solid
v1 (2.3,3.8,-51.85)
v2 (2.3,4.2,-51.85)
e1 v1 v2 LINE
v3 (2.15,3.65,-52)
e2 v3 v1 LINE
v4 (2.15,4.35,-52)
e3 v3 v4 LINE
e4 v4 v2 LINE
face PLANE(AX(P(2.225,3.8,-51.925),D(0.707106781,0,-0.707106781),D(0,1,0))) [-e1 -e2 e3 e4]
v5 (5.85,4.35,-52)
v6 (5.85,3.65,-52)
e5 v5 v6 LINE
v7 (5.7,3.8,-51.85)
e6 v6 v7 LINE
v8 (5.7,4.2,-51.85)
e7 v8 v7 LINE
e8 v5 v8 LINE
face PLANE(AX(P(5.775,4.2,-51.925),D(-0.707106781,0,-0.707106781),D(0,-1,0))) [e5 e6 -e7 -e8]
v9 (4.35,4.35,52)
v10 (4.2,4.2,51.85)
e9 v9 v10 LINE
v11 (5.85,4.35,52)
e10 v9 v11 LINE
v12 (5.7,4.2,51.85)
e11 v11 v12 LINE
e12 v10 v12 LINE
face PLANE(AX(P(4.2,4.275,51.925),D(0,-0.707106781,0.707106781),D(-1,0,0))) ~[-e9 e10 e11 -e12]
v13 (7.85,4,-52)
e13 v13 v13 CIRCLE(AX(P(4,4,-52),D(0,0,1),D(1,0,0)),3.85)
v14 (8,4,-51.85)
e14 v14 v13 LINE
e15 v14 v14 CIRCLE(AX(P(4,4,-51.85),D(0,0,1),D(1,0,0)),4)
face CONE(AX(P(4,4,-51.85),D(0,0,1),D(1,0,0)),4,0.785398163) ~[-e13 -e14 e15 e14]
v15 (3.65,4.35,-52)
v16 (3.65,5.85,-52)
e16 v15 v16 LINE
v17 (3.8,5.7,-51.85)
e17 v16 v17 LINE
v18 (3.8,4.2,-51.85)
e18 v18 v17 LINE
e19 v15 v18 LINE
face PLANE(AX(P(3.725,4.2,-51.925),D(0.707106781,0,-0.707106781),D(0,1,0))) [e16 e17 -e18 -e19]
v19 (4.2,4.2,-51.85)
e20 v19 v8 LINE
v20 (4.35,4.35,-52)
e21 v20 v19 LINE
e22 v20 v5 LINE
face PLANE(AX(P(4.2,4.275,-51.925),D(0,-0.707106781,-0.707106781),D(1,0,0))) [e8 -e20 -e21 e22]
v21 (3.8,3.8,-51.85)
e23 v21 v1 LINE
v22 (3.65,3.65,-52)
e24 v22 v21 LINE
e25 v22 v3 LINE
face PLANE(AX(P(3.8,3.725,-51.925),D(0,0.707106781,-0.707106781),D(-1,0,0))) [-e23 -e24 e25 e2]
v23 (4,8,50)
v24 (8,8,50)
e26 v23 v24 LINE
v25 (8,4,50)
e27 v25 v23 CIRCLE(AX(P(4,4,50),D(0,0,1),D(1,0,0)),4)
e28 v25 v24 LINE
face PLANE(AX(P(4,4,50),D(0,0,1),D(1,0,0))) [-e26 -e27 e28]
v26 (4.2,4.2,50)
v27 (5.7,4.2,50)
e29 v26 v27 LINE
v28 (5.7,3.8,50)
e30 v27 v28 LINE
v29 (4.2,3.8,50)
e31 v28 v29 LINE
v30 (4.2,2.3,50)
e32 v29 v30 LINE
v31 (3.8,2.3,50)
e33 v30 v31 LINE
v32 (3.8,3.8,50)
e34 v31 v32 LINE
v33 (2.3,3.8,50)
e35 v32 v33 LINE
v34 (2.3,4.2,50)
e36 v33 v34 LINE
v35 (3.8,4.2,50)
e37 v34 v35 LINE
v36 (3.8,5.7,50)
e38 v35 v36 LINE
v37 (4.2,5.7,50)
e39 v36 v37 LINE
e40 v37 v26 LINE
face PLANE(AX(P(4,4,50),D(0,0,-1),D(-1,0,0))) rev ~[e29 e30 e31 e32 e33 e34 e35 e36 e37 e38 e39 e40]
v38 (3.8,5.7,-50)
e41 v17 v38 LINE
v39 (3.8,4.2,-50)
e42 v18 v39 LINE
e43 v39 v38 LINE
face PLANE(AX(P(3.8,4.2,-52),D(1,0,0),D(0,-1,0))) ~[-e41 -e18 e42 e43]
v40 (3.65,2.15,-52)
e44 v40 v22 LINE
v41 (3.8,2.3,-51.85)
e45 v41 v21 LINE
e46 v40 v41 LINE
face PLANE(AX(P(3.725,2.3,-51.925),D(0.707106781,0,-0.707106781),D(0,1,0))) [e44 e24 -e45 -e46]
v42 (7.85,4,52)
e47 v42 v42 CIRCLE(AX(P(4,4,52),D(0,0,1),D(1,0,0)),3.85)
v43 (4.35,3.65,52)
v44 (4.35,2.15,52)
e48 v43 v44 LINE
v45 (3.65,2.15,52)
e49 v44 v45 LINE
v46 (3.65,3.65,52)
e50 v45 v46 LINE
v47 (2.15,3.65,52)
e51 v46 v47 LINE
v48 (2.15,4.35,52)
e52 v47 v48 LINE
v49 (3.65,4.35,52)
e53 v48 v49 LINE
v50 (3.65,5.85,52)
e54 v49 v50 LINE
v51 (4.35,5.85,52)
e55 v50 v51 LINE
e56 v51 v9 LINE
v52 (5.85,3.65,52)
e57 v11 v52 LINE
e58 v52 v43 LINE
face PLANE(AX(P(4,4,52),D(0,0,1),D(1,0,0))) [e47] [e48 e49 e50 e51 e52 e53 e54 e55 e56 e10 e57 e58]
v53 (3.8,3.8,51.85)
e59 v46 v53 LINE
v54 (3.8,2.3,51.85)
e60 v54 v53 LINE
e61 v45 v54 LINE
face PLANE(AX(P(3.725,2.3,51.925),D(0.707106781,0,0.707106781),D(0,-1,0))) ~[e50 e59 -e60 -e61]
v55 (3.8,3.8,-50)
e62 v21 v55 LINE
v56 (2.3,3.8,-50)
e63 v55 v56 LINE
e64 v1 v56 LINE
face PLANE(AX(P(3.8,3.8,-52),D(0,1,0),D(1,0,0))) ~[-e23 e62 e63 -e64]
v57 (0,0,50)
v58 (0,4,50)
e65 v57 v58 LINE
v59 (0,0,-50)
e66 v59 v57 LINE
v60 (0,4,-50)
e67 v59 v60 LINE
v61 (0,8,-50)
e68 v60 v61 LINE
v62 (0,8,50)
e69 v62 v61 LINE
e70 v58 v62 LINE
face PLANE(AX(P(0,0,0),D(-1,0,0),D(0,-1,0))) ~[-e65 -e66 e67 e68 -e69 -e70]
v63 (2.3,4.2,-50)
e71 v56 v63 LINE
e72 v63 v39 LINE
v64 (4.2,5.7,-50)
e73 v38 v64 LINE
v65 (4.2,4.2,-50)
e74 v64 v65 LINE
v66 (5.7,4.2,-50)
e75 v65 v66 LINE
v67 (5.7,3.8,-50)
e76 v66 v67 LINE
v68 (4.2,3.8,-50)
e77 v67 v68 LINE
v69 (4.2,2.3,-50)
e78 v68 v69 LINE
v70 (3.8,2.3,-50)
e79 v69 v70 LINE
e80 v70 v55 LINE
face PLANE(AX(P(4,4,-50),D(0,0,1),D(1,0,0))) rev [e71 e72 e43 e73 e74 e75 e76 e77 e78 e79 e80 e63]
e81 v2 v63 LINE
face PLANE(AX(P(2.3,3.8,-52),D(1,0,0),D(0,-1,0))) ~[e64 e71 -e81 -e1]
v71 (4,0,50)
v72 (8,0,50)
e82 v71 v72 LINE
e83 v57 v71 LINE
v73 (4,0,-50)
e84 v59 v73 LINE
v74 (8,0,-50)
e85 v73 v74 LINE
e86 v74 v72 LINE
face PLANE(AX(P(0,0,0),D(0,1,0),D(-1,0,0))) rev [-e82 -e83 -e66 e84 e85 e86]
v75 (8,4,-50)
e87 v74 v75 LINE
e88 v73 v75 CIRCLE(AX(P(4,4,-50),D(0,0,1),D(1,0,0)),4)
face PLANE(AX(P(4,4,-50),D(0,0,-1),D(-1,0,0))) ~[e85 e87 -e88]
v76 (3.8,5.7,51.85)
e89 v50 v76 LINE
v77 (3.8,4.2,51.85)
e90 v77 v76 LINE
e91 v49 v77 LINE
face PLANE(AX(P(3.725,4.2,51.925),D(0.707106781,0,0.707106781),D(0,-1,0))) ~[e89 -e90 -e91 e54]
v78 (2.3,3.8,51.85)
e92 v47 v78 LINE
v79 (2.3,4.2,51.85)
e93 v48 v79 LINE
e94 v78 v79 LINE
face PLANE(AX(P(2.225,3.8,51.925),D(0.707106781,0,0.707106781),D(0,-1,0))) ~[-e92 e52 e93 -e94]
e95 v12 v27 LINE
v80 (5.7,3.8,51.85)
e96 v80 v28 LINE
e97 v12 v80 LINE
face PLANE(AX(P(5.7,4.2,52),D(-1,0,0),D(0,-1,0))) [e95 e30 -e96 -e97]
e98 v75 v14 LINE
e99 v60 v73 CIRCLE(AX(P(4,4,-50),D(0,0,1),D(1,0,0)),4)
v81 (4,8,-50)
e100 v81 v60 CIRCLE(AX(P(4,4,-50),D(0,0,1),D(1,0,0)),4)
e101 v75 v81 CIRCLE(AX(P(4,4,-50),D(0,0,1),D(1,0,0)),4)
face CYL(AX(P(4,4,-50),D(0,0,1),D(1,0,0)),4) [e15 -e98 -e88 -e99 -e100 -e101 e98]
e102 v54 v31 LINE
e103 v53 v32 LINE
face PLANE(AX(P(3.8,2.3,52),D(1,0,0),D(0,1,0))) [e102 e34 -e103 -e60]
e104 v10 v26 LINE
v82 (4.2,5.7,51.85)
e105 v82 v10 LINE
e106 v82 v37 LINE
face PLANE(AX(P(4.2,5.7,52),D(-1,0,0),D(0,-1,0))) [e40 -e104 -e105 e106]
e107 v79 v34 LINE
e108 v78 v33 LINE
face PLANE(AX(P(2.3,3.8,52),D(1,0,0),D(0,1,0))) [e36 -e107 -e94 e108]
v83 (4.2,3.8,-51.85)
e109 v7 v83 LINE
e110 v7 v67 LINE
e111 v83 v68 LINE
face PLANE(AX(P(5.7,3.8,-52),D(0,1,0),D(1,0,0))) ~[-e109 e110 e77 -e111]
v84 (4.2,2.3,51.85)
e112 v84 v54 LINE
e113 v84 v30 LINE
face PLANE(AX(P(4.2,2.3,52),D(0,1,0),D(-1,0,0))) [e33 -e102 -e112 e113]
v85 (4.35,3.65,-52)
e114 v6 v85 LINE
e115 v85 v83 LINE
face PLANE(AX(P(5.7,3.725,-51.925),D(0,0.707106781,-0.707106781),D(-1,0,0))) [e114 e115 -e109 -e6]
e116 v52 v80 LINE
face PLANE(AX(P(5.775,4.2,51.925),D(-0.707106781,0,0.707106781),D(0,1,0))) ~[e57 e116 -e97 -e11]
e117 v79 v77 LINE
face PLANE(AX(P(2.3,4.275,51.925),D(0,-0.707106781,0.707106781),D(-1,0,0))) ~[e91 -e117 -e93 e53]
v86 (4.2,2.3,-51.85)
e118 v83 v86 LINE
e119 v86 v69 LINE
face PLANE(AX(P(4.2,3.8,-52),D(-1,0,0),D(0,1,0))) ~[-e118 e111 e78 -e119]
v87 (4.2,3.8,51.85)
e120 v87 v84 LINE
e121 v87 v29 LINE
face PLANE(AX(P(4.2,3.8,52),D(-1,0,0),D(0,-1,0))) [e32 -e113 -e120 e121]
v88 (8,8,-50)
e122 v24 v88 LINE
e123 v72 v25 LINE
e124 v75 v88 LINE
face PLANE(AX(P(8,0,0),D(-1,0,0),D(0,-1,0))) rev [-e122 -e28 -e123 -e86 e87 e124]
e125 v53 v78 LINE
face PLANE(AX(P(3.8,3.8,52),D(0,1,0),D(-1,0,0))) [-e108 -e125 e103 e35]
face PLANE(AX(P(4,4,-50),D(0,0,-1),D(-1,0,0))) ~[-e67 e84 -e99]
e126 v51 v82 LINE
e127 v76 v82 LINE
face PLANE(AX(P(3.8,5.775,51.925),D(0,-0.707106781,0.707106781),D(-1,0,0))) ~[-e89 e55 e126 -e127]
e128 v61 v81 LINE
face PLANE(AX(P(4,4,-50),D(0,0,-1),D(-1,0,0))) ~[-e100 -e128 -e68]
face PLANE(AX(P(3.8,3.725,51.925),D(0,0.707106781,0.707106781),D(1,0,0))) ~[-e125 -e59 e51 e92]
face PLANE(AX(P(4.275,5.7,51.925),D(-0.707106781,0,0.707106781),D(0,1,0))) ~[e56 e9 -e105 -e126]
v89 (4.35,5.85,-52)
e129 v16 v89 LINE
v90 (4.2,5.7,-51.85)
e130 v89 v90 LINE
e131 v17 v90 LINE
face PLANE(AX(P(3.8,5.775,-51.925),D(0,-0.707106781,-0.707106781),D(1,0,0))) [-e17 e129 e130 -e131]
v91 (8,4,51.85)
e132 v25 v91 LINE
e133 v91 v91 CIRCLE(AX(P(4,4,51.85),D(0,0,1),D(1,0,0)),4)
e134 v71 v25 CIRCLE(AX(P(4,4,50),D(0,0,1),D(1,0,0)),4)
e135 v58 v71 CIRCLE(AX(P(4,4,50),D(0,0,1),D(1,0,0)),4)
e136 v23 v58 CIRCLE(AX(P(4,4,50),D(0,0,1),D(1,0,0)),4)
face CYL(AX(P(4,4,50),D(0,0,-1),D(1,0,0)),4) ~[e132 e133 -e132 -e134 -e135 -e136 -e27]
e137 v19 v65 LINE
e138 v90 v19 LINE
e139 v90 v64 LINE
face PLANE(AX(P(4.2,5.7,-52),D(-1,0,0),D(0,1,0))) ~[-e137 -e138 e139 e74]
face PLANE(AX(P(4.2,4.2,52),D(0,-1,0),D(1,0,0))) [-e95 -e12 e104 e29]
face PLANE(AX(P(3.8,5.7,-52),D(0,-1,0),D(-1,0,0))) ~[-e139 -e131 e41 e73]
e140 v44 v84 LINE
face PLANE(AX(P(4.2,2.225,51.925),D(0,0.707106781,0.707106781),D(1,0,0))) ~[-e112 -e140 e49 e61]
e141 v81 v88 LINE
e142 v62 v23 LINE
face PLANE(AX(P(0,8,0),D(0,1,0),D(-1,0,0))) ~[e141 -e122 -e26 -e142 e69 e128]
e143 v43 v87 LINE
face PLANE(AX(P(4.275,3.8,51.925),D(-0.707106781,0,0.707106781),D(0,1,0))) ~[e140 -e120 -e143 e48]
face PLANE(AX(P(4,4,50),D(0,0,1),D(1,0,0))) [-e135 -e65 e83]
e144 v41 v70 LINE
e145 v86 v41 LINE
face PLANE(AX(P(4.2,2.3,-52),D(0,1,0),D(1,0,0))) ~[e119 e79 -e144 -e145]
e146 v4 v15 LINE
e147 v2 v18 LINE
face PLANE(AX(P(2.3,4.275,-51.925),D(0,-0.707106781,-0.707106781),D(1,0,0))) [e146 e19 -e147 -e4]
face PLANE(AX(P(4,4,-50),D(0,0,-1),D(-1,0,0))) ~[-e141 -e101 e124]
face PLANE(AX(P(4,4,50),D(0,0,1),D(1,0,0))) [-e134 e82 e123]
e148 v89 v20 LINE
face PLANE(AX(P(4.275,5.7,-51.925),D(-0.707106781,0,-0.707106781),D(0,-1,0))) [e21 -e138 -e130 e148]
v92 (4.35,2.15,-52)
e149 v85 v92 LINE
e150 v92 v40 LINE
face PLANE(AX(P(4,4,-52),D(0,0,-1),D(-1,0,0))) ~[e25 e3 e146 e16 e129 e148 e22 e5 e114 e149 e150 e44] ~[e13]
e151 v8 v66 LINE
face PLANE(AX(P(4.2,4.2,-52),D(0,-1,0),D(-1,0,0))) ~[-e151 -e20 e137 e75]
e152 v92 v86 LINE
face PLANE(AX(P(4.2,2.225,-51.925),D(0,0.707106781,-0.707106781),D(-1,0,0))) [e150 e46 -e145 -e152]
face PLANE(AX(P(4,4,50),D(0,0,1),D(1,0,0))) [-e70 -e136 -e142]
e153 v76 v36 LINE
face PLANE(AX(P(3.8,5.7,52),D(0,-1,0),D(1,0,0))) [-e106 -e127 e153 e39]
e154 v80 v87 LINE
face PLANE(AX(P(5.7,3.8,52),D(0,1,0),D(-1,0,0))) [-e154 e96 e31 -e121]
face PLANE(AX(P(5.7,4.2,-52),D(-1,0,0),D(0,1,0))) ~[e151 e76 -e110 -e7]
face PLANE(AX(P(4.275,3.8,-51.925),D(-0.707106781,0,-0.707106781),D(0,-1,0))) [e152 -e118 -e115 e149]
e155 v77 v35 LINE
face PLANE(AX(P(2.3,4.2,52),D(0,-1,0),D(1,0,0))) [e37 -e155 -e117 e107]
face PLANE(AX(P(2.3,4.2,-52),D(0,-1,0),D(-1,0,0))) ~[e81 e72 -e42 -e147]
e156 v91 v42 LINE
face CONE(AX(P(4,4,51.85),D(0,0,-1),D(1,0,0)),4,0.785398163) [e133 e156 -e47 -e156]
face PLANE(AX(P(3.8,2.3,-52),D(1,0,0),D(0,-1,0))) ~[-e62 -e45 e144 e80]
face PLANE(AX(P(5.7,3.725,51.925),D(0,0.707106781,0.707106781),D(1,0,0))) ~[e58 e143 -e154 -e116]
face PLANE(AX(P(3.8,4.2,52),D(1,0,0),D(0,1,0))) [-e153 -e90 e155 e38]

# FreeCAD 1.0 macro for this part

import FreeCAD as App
import Part
import Sketcher
from FreeCAD import Vector
Q = App.Units.Quantity


def edges_at(feature, points):
    """Names of the edges that pass closest to the given points."""
    edges = feature.Shape.Edges
    near = lambda p: min(range(len(edges)), key=lambda i: edges[i].distToShape(Part.Vertex(*p))[0])
    return sorted({f"Edge{near(p) + 1}" for p in points})


def add_polygon(sketch, points):
    """Adds a closed chain of lines whose ends are joined by coincident constraints."""
    first, n = sketch.GeometryCount, len(points)
    for a, b in zip(points, points[1:] + points[:1]):
        sketch.addGeometry(Part.LineSegment(App.Vector(*a, 0), App.Vector(*b, 0)), False)
    for i in range(n):
        sketch.addConstraint(Sketcher.Constraint("Coincident", first + i, 2, first + (i + 1) % n, 1))

doc = App.newDocument("Part")
body = doc.addObject("PartDesign::Body", "Body")

sketch1 = body.newObject("Sketcher::SketchObject", "Sketch")
sketch1.AttachmentSupport = (doc.getObject("XY_Plane"), [""])
sketch1.MapMode = "FlatFace"
add_polygon(sketch1, [(0, 8), (0, 0), (8, 0), (8, 8)])
sketch1.addConstraint(Sketcher.Constraint("Vertical", 0))
sketch1.addConstraint(Sketcher.Constraint("Horizontal", 1))
sketch1.addConstraint(Sketcher.Constraint("Vertical", 2))
sketch1.addConstraint(Sketcher.Constraint("Horizontal", 3))
sketch1.addConstraint(Sketcher.Constraint("Coincident", 0, 2, -1, 1))
sketch1.addConstraint(Sketcher.Constraint("Equal", 3, 0))
sketch1.addConstraint(Sketcher.Constraint("DistanceX", 1, 1, 1, 2, Q("8 mm")))
pad1 = body.newObject("PartDesign::Pad", "Pad")
pad1.Profile = sketch1
pad1.Length = 50

sketch2 = body.newObject("Sketcher::SketchObject", "Sketch001")
sketch2.AttachmentSupport = (doc.getObject("XY_Plane"), [""])
sketch2.MapMode = "FlatFace"
sketch2.AttachmentOffset = App.Placement(Vector(0, 0, 50), App.Rotation())
sketch2.addGeometry(Part.Circle(Vector(4, 4, 0), Vector(0, 0, 1), 4), False)
sketch2.addConstraint(Sketcher.Constraint("Diameter", 0, Q("8 mm")))
sketch2.addConstraint(Sketcher.Constraint("DistanceX", -1, 1, 0, 3, Q("4 mm")))
sketch2.addConstraint(Sketcher.Constraint("DistanceY", -1, 1, 0, 3, Q("4 mm")))
pad2 = body.newObject("PartDesign::Pad", "Pad001")
pad2.Profile = sketch2
pad2.Length = 2
doc.recompute()

mirrored = body.newObject("PartDesign::Mirrored", "Mirrored")
mirrored.Originals = [pad1, pad2]
mirrored.MirrorPlane = (doc.getObject("XY_Plane"), [""])
body.Tip = mirrored

sketch3 = body.newObject("Sketcher::SketchObject", "Sketch002")
sketch3.AttachmentSupport = (doc.getObject("XY_Plane"), [""])
sketch3.MapMode = "FlatFace"
sketch3.AttachmentOffset = App.Placement(Vector(0, 0, 52), App.Rotation())
add_polygon(sketch3, [(4.2, 5.7), (3.8, 5.7), (3.8, 4.2), (2.3, 4.2), (2.3, 3.8), (3.8, 3.8), (3.8, 2.3), (4.2, 2.3), (4.2, 3.8), (5.7, 3.8), (5.7, 4.2), (4.2, 4.2)])
sketch3.addConstraint(Sketcher.Constraint("Horizontal", 0))
sketch3.addConstraint(Sketcher.Constraint("Vertical", 1))
sketch3.addConstraint(Sketcher.Constraint("Horizontal", 2))
sketch3.addConstraint(Sketcher.Constraint("Vertical", 3))
sketch3.addConstraint(Sketcher.Constraint("Horizontal", 4))
sketch3.addConstraint(Sketcher.Constraint("Vertical", 5))
sketch3.addConstraint(Sketcher.Constraint("Horizontal", 6))
sketch3.addConstraint(Sketcher.Constraint("Vertical", 7))
sketch3.addConstraint(Sketcher.Constraint("Horizontal", 8))
sketch3.addConstraint(Sketcher.Constraint("Vertical", 9))
sketch3.addConstraint(Sketcher.Constraint("Horizontal", 10))
sketch3.addConstraint(Sketcher.Constraint("Vertical", 11))
sketch3.addConstraint(Sketcher.Constraint("Horizontal", 4, 2, 7, 2))
sketch3.addConstraint(Sketcher.Constraint("Horizontal", 2, 2, 9, 2))
sketch3.addConstraint(Sketcher.Constraint("Vertical", 1, 2, 4, 2))
sketch3.addConstraint(Sketcher.Constraint("Vertical", 7, 2, 10, 2))
sketch3.addConstraint(Sketcher.Constraint("Equal", 4, 8))
sketch3.addConstraint(Sketcher.Constraint("Equal", 10, 1))
sketch3.addConstraint(Sketcher.Constraint("Equal", 6, 3))
sketch3.addConstraint(Sketcher.Constraint("Equal", 1, 5))
sketch3.addConstraint(Sketcher.Constraint("DistanceX", 0, 2, 0, 1, Q("0.4 mm")))
sketch3.addConstraint(Sketcher.Constraint("DistanceX", 2, 2, 2, 1, Q("1.5 mm")))
sketch3.addConstraint(Sketcher.Constraint("DistanceX", -1, 1, 0, 2, Q("3.8 mm")))
sketch3.addConstraint(Sketcher.Constraint("DistanceY", -1, 1, 0, 2, Q("5.7 mm")))
pocket1 = body.newObject("PartDesign::Pocket", "Pocket")
pocket1.Profile = sketch3
pocket1.Length = 2
doc.recompute()

mirrored2 = body.newObject("PartDesign::Mirrored", "Mirrored001")
mirrored2.Originals = [pocket1]
mirrored2.MirrorPlane = (doc.getObject("XY_Plane"), [""])
body.Tip = mirrored2
doc.recompute()

chamfer = body.newObject("PartDesign::Chamfer", "Chamfer")
chamfer.Base = (mirrored2, edges_at(mirrored2, [
    (0, 4, 52),
    (0, 4, -52),
    (4, 5.7, 52),
    (4.2, 4.95, 52),
    (4.95, 4.2, 52),
    (5.7, 4, 52),
    (3.8, 3.05, 52),
    (3.05, 3.8, 52),
    (3.8, 4.95, 52),
    (3.05, 4.2, 52),
    (2.3, 4, 52),
    (4, 2.3, 52),
    (4.2, 3.05, 52),
    (4.95, 3.8, 52),
    (3.8, 4.95, -52),
    (3.05, 4.2, -52),
    (2.3, 4, -52),
    (4, 2.3, -52),
    (4.2, 3.05, -52),
    (4.95, 3.8, -52),
    (4, 5.7, -52),
    (4.2, 4.95, -52),
    (4.95, 4.2, -52),
    (5.7, 4, -52),
    (3.8, 3.05, -52),
    (3.05, 3.8, -52),
]))
chamfer.Size = 0.15

doc.recompute()
